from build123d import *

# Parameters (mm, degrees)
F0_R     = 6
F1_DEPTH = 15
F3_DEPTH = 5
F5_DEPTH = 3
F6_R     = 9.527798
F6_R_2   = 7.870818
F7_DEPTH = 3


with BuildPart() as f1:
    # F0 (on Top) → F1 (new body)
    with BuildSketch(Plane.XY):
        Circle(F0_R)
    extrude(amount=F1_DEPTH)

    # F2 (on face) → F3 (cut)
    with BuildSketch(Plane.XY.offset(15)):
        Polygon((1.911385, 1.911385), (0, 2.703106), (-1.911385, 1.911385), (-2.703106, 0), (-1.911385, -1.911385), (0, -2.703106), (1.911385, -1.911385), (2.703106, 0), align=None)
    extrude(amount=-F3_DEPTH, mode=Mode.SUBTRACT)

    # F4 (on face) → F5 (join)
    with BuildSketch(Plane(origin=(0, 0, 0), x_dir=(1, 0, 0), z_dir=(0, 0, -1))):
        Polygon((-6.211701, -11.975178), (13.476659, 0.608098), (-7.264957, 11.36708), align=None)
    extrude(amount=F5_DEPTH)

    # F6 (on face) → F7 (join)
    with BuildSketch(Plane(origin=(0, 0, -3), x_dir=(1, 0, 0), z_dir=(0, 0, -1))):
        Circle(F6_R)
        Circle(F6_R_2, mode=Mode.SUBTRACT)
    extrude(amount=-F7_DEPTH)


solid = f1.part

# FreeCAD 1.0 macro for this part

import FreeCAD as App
import Part
import Sketcher

V = App.Vector
Q = App.Units.Quantity


def add_polygon(sketch, points):
    """Adds a closed chain of lines whose ends are joined by coincident constraints."""
    first, n = sketch.GeometryCount, len(points)
    for a, b in zip(points, points[1:] + points[:1]):
        sketch.addGeometry(Part.LineSegment(App.Vector(*a, 0), App.Vector(*b, 0)), False)
    for i in range(n):
        sketch.addConstraint(Sketcher.Constraint("Coincident", first + i, 2, first + (i + 1) % n, 1))

doc = App.newDocument("Part")
body = doc.addObject("PartDesign::Body", "Body")

sketch1 = body.newObject("Sketcher::SketchObject", "Sketch")
sketch1.AttachmentSupport = (doc.getObject("XY_Plane"), [""])
sketch1.MapMode = "FlatFace"
sketch1.addGeometry(Part.Circle(V(0, 0, 0), V(0, 0, 1), 6), False)
sketch1.addConstraint([
    Sketcher.Constraint("Coincident", 0, 3, -1, 1),
    Sketcher.Constraint("Diameter", 0, 12.0),
])
pad1 = body.newObject("PartDesign::Pad", "Pad")
pad1.Profile = sketch1
pad1.Length = 15

sketch2 = body.newObject("Sketcher::SketchObject", "Sketch001")
sketch2.AttachmentSupport = (doc.getObject("XY_Plane"), [""])
sketch2.MapMode = "FlatFace"
sketch2.AttachmentOffset = App.Placement(V(0, 0, 15), App.Rotation())
add_polygon(sketch2, [(1.9, 1.9), (0, 2.7), (-1.9, 1.9), (-2.7, 0), (-1.9, -1.9), (0, -2.7), (1.9, -1.9), (2.7, 0)])
sketch2.addConstraint([
    Sketcher.Constraint("Symmetric", 0, 2, 4, 2, -1, 1),
    Sketcher.Constraint("Symmetric", 1, 2, 5, 2, -1, 1),
    Sketcher.Constraint("Symmetric", 2, 2, 6, 2, -1, 1),
    Sketcher.Constraint("Symmetric", 3, 2, 7, 2, -1, 1),
    Sketcher.Constraint("Symmetric", 3, 2, 5, 2, -2),
    Sketcher.Constraint("PointOnObject", 0, 2, -2),
    Sketcher.Constraint("PointOnObject", 2, 2, -1),
    Sketcher.Constraint("Perpendicular", 0, 2),
    Sketcher.Constraint("Equal", 1, 2),
    Sketcher.Constraint("Angle", 0, Q("157.500015 deg")),
    Sketcher.Constraint("DistanceY", 1, 2, 0, 2, 0.791721),
])
pocket1 = body.newObject("PartDesign::Pocket", "Pocket")
pocket1.Profile = sketch2
pocket1.Length = 5

sketch3 = body.newObject("Sketcher::SketchObject", "Sketch002")
sketch3.AttachmentSupport = (doc.getObject("XY_Plane"), [""])
sketch3.MapMode = "FlatFace"
add_polygon(sketch3, [(-6, 12), (13, -1), (-7, -11)])
sketch3.addConstraint([
    Sketcher.Constraint("Equal", 0, 1),
    Sketcher.Constraint("Equal", 1, 2),
    Sketcher.Constraint("DistanceY", 0, 2, -1, 1, 0.608098),
    Sketcher.Constraint("DistanceX", 2, 2, -1, 1, 6.211701),
    Sketcher.Constraint("Distance", 0, 23.366009),
    Sketcher.Constraint("DistanceX", -1, 1, 0, 2, 13.476659),
])
pad2 = body.newObject("PartDesign::Pad", "Pad001")
pad2.Profile = sketch3
pad2.Length = 3
pad2.Reversed = True

sketch4 = body.newObject("Sketcher::SketchObject", "Sketch003")
sketch4.AttachmentSupport = (doc.getObject("XY_Plane"), [""])
sketch4.MapMode = "FlatFace"
sketch4.AttachmentOffset = App.Placement(V(0, 0, -3), App.Rotation())
sketch4.addGeometry([
    Part.Circle(V(0, 0, 0), V(0, 0, 1), 10),
    Part.Circle(V(0, 0, 0), V(0, 0, 1), 8),
], False)
sketch4.addConstraint([
    Sketcher.Constraint("Coincident", 0, 3, -1, 1),
    Sketcher.Constraint("Coincident", 1, 3, -1, 1),
    Sketcher.Constraint("Diameter", 0, 19.055596),
    Sketcher.Constraint("Diameter", 1, 15.741636),
])
pad3 = body.newObject("PartDesign::Pad", "Pad002")
pad3.Profile = sketch4
pad3.Length = 3

doc.recompute()
